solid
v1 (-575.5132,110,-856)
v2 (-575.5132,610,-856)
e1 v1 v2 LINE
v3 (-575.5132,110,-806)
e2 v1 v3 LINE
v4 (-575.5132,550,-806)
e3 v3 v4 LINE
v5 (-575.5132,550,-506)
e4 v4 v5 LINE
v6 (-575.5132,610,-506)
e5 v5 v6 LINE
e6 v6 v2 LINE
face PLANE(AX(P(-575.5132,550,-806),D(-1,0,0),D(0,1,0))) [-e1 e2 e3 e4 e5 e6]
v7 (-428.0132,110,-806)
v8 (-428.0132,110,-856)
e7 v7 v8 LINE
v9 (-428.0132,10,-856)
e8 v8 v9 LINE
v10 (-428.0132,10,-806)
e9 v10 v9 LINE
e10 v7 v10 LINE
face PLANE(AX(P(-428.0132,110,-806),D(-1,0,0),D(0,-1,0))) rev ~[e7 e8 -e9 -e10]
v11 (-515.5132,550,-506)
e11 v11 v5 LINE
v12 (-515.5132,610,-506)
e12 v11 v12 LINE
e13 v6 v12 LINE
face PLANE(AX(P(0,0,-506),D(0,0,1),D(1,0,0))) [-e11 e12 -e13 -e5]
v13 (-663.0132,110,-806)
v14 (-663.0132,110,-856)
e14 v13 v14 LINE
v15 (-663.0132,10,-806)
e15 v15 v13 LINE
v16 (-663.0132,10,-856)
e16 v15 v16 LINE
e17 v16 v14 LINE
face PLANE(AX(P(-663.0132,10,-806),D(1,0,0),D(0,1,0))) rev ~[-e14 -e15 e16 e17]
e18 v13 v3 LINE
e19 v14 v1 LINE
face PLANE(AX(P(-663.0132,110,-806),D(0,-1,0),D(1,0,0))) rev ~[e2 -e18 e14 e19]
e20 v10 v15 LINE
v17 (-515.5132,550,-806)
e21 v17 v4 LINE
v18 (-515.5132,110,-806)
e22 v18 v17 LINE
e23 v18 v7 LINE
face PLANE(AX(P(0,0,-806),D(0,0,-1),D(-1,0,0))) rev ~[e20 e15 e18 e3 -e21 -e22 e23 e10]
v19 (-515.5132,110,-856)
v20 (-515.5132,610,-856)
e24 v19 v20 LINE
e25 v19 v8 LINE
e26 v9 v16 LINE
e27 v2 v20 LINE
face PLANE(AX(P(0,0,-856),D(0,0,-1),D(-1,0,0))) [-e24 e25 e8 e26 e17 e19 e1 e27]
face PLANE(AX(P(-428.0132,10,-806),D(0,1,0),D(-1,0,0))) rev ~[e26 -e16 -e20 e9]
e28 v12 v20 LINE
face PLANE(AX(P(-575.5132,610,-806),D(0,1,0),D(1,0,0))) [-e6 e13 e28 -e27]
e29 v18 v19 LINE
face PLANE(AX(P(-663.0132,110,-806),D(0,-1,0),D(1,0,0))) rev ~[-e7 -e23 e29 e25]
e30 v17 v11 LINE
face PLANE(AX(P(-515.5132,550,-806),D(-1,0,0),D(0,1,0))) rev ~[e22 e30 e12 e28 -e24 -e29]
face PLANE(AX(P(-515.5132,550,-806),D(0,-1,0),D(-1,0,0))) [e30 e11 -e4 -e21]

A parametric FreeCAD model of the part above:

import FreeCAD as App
import Part
import Sketcher

V = App.Vector

doc = App.newDocument("Part")
params = doc.addObject("Spreadsheet::Sheet", "Params")
for row, (alias, value) in enumerate([
    ("sketch1_width", "235 mm"),
    ("sketch1_height", "100 mm"),
    ("pad1_length", "50 mm"),
    ("sketch2_width", "60 mm"),
    ("sketch2_height", "50 mm"),
    ("pad2_length", "500 mm"),
    ("sketch3_width", "60 mm"),
    ("pad3_length", "300 mm"),
], start=1):
    params.set(f"A{row}", alias)
    params.set(f"B{row}", "=" + value)
    params.setAlias(f"B{row}", alias)

body = doc.addObject("PartDesign::Body", "Body")

# Sketch on XY plane
sketch1 = body.newObject("Sketcher::SketchObject", "Sketch")
sketch1.AttachmentSupport = (doc.getObject("XY_Plane"), [""])
sketch1.MapMode = "FlatFace"
sketch1.AttachmentOffset = App.Placement(V(0, 0, -806), App.Rotation())
sketch1.addGeometry(Part.LineSegment(V(-428, 110, 0), V(-428, 10, 0)), False)
sketch1.addGeometry(Part.LineSegment(V(-428, 10, 0), V(-663, 10, 0)), False)
sketch1.addGeometry(Part.LineSegment(V(-663, 10, 0), V(-663, 110, 0)), False)
sketch1.addGeometry(Part.LineSegment(V(-663, 110, 0), V(-428, 110, 0)), False)
sketch1.addConstraint(Sketcher.Constraint("Coincident", 0, 2, 1, 1))
sketch1.addConstraint(Sketcher.Constraint("Coincident", 1, 2, 2, 1))
sketch1.addConstraint(Sketcher.Constraint("Coincident", 2, 2, 3, 1))
sketch1.addConstraint(Sketcher.Constraint("Coincident", 3, 2, 0, 1))
sketch1.addConstraint(Sketcher.Constraint("Vertical", 0))
sketch1.addConstraint(Sketcher.Constraint("Horizontal", 1))
sketch1.addConstraint(Sketcher.Constraint("Vertical", 2))
sketch1.addConstraint(Sketcher.Constraint("Horizontal", 3))
sketch1.addConstraint(Sketcher.Constraint("DistanceX", 1, 2, 1, 1, 235.0))
sketch1.addConstraint(Sketcher.Constraint("DistanceY", 0, 2, 0, 1, 100.0))
sketch1.addConstraint(Sketcher.Constraint("DistanceY", -1, 1, 0, 2, 10.0))
sketch1.addConstraint(Sketcher.Constraint("DistanceX", 0, 2, -1, 1, 428.0132))
sketch1.setExpression("Constraints[8]", "Params.sketch1_width")
sketch1.setExpression("Constraints[9]", "Params.sketch1_height")
pad1 = body.newObject("PartDesign::Pad", "Pad")
pad1.Profile = sketch1
pad1.setExpression("Length", "Params.pad1_length")
pad1.Reversed = True

# Sketch on XZ plane
sketch2 = body.newObject("Sketcher::SketchObject", "Sketch001")
sketch2.AttachmentSupport = (doc.getObject("XZ_Plane"), [""])
sketch2.MapMode = "FlatFace"
sketch2.AttachmentOffset = App.Placement(V(0, 0, -110), App.Rotation())
sketch2.addGeometry(Part.LineSegment(V(-516, -856, 0), V(-576, -856, 0)), False)
sketch2.addGeometry(Part.LineSegment(V(-576, -856, 0), V(-576, -806, 0)), False)
sketch2.addGeometry(Part.LineSegment(V(-576, -806, 0), V(-516, -806, 0)), False)
sketch2.addGeometry(Part.LineSegment(V(-516, -806, 0), V(-516, -856, 0)), False)
sketch2.addConstraint(Sketcher.Constraint("Coincident", 0, 2, 1, 1))
sketch2.addConstraint(Sketcher.Constraint("Coincident", 1, 2, 2, 1))
sketch2.addConstraint(Sketcher.Constraint("Coincident", 2, 2, 3, 1))
sketch2.addConstraint(Sketcher.Constraint("Coincident", 3, 2, 0, 1))
sketch2.addConstraint(Sketcher.Constraint("Horizontal", 0))
sketch2.addConstraint(Sketcher.Constraint("Vertical", 1))
sketch2.addConstraint(Sketcher.Constraint("Horizontal", 2))
sketch2.addConstraint(Sketcher.Constraint("Vertical", 3))
sketch2.addConstraint(Sketcher.Constraint("DistanceX", 0, 2, 0, 1, 60.0))
sketch2.addConstraint(Sketcher.Constraint("DistanceY", 1, 1, 1, 2, 50.0))
sketch2.addConstraint(Sketcher.Constraint("DistanceY", 0, 2, -1, 1, 856.0))
sketch2.addConstraint(Sketcher.Constraint("DistanceX", 0, 2, -1, 1, 575.5132))
sketch2.setExpression("Constraints[8]", "Params.sketch2_width")
sketch2.setExpression("Constraints[9]", "Params.sketch2_height")
pad2 = body.newObject("PartDesign::Pad", "Pad001")
pad2.Profile = sketch2
pad2.setExpression("Length", "Params.pad2_length")
pad2.Reversed = True

# Sketch on XY plane
sketch3 = body.newObject("Sketcher::SketchObject", "Sketch002")
sketch3.AttachmentSupport = (doc.getObject("XY_Plane"), [""])
sketch3.MapMode = "FlatFace"
sketch3.AttachmentOffset = App.Placement(V(0, 0, -806), App.Rotation())
sketch3.addGeometry(Part.LineSegment(V(-576, 610, 0), V(-576, 550, 0)), False)
sketch3.addGeometry(Part.LineSegment(V(-576, 550, 0), V(-516, 550, 0)), False)
sketch3.addGeometry(Part.LineSegment(V(-516, 550, 0), V(-516, 610, 0)), False)
sketch3.addGeometry(Part.LineSegment(V(-516, 610, 0), V(-576, 610, 0)), False)
sketch3.addConstraint(Sketcher.Constraint("Coincident", 0, 2, 1, 1))
sketch3.addConstraint(Sketcher.Constraint("Coincident", 1, 2, 2, 1))
sketch3.addConstraint(Sketcher.Constraint("Coincident", 2, 2, 3, 1))
sketch3.addConstraint(Sketcher.Constraint("Coincident", 3, 2, 0, 1))
sketch3.addConstraint(Sketcher.Constraint("Vertical", 0))
sketch3.addConstraint(Sketcher.Constraint("Horizontal", 1))
sketch3.addConstraint(Sketcher.Constraint("Vertical", 2))
sketch3.addConstraint(Sketcher.Constraint("Horizontal", 3))
sketch3.addConstraint(Sketcher.Constraint("Equal", 3, 0))
sketch3.addConstraint(Sketcher.Constraint("DistanceX", 1, 1, 1, 2, 60.0))
sketch3.addConstraint(Sketcher.Constraint("DistanceY", -1, 1, 0, 2, 550.0))
sketch3.addConstraint(Sketcher.Constraint("DistanceX", 0, 2, -1, 1, 575.5132))
sketch3.setExpression("Constraints[9]", "Params.sketch3_width")
pad3 = body.newObject("PartDesign::Pad", "Pad002")
pad3.Profile = sketch3
pad3.setExpression("Length", "Params.pad3_length")

doc.recompute()
